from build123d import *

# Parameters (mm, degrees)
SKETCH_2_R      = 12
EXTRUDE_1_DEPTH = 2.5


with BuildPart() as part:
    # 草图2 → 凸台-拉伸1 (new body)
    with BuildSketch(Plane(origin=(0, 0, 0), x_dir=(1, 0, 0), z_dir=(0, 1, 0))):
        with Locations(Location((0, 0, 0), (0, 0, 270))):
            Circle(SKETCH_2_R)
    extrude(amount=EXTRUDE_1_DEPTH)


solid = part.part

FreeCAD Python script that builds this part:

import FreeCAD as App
import Part
import Sketcher

doc = App.newDocument("Part")
body = doc.addObject("PartDesign::Body", "Body")

sketch1 = body.newObject("Sketcher::SketchObject", "Sketch")
sketch1.AttachmentSupport = (doc.getObject("XZ_Plane"), [""])
sketch1.MapMode = "FlatFace"
sketch1.addGeometry(Part.Circle(App.Vector(0, 0, 0), App.Vector(0, 0, 1), 12), False)
sketch1.addConstraint(Sketcher.Constraint("Coincident", 0, 3, -1, 1))
sketch1.addConstraint(Sketcher.Constraint("Diameter", 0, 24.0))
pad1 = body.newObject("PartDesign::Pad", "Pad")
pad1.Profile = sketch1
pad1.Length = 2.5
pad1.Reversed = True

doc.recompute()
